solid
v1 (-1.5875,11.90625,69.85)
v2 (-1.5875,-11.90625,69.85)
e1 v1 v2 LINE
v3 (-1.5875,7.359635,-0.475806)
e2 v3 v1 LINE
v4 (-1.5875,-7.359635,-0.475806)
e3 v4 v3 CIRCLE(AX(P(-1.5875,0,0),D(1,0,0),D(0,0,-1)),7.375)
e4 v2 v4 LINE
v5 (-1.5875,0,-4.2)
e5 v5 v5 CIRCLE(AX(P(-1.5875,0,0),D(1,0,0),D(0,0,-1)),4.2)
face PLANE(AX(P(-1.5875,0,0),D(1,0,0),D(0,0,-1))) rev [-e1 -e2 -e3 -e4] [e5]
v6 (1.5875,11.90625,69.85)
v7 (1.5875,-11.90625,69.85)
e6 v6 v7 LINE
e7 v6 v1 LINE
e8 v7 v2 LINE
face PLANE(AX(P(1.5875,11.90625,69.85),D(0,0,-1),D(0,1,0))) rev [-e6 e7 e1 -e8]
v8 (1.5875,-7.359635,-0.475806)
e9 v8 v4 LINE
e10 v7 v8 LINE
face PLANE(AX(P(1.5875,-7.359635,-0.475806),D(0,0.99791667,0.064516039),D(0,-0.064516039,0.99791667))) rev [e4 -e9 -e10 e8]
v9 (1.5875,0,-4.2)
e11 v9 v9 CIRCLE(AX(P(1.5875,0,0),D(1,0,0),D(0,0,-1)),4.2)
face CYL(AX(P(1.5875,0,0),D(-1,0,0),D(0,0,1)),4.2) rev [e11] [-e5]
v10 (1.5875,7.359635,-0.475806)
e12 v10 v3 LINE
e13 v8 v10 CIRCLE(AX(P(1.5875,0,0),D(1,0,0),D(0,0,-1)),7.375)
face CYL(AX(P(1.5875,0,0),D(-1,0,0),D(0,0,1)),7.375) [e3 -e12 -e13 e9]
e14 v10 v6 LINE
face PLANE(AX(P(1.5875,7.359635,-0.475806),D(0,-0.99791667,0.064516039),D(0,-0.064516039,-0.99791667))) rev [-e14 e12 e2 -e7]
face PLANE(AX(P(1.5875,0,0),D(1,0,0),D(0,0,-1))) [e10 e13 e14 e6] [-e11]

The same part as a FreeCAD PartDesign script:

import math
import FreeCAD as App
import Part
import Sketcher
Q = App.Units.Quantity

doc = App.newDocument("Part")
params = doc.addObject("Spreadsheet::Sheet", "Params")
for row, (alias, value) in enumerate([
    ("sketch1_width", "0.9375 in"),
    ("pad1_length", "0.125 in"),
], start=1):
    params.set(f"A{row}", alias)
    params.set(f"B{row}", "=" + value)
    params.setAlias(f"B{row}", alias)

body = doc.addObject("PartDesign::Body", "Body")

# Sketch on YZ plane
sketch1 = doc.addObject("Sketcher::SketchObject", "Sketch")
body.addObject(sketch1)
sketch1.AttachmentSupport = (doc.YZ_Plane, [""])
sketch1.MapMode = "FlatFace"
sketch1.addGeometry([
    Part.LineSegment(App.Vector(11.90625, 69.85, 0), App.Vector(-11.90625, 69.85, 0)),  # 0
    Part.LineSegment(App.Vector(-11.90625, 69.85, 0), App.Vector(-7.359635, -0.475806, 0)),  # 1
    Part.ArcOfCircle(Part.Circle(App.Vector(0, 0, 0), App.Vector(0, 0, 1), 7.375), math.radians(-176.300934), math.radians(-3.699066)),  # 2
    Part.LineSegment(App.Vector(7.359635, -0.475806, 0), App.Vector(11.90625, 69.85, 0)),  # 3
    Part.Circle(App.Vector(0, 0, 0), App.Vector(0, 0, 1), 4.2),  # 4
], False)
sketch1.addConstraint([
    Sketcher.Constraint("Coincident", 0, 2, 1, 1),
    Sketcher.Constraint("Tangent", 1, 2, 2, 1),
    Sketcher.Constraint("Tangent", 2, 2, 3, 1),
    Sketcher.Constraint("Coincident", 3, 2, 0, 1),
    Sketcher.Constraint("Horizontal", 0),
    Sketcher.Constraint("Coincident", 2, 3, -1, 1),
    Sketcher.Constraint("Coincident", 4, 3, -1, 1),
    Sketcher.Constraint("Horizontal", 1, 2, 2, 2),
    Sketcher.Constraint("Diameter", 4, 8.4),
    Sketcher.Constraint("DistanceX", 0, 2, 0, 1, Q("0.9375 in")),
    Sketcher.Constraint("DistanceY", -1, 1, 0, 2, Q("2.75 in")),
    Sketcher.Constraint("Radius", 2, 7.375),
])
sketch1.setExpression("Constraints[9]", "Params.sketch1_width")
pad1 = doc.addObject("PartDesign::Pad", "Pad")
body.addObject(pad1)
pad1.Profile = sketch1
pad1.setExpression("Length", "Params.pad1_length")
pad1.Midplane = True

doc.recompute()
